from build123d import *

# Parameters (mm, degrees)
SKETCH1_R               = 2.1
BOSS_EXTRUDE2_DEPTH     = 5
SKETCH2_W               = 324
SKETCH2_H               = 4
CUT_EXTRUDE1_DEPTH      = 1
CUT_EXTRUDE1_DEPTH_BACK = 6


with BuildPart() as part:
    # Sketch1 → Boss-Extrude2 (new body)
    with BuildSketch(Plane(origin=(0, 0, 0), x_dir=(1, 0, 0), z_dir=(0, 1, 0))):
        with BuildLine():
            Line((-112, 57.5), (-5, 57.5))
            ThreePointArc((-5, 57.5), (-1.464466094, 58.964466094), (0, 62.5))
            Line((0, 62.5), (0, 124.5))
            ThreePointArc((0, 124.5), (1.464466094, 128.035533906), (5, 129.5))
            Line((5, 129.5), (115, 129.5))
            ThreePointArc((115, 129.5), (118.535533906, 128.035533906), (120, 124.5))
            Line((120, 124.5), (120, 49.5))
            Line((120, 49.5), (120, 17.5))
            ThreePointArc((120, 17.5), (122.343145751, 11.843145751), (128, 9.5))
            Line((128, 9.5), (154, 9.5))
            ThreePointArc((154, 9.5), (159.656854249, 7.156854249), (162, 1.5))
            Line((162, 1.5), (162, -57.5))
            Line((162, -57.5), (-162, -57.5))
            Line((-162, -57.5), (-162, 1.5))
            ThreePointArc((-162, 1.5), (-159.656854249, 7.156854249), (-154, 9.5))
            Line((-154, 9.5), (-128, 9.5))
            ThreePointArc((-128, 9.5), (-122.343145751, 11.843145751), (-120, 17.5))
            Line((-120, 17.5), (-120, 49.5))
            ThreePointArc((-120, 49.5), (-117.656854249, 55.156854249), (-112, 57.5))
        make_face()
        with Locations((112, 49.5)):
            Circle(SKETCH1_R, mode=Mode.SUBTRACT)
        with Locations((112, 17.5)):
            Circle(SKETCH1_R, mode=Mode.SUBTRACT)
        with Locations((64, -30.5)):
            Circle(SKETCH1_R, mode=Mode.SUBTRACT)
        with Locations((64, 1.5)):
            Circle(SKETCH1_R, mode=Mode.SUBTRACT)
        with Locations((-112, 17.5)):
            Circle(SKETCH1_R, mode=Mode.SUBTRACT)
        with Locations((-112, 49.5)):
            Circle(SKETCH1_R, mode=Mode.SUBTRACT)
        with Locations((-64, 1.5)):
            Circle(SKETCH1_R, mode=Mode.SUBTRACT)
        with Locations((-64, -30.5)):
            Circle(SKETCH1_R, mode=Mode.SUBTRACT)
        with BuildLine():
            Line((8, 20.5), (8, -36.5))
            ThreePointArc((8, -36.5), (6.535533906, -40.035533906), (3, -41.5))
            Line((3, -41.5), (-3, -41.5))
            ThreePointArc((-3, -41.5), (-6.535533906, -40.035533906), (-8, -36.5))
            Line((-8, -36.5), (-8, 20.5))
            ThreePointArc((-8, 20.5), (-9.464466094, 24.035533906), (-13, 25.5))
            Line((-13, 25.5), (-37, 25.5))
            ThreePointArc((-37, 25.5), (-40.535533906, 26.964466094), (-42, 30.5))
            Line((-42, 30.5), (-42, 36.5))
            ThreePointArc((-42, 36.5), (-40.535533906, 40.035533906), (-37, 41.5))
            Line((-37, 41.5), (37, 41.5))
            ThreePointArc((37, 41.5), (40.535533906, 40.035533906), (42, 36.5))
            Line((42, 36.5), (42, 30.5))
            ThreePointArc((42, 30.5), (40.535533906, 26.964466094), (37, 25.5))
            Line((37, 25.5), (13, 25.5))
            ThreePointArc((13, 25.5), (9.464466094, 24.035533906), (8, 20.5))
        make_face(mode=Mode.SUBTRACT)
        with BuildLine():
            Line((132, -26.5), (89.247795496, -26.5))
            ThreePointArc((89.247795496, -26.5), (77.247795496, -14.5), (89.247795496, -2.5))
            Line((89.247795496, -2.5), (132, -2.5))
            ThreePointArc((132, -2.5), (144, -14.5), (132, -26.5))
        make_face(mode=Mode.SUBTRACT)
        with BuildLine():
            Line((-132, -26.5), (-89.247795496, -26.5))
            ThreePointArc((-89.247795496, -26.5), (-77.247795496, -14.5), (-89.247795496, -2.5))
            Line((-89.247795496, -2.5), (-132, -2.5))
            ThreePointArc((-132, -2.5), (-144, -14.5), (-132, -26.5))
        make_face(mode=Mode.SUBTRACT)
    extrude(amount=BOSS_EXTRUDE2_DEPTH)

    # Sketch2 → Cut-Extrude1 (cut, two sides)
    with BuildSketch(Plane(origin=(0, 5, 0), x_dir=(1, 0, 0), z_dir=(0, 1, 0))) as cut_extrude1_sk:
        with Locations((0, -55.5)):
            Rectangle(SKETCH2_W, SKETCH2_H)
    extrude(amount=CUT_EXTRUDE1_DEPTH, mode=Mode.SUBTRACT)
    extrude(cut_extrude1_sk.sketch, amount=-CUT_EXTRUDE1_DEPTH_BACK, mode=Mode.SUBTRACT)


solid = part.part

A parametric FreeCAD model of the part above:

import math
import FreeCAD as App
import Part
import Sketcher
from FreeCAD import Vector


def add_polygon(sketch, points):
    """Adds a closed chain of lines whose ends are joined by coincident constraints."""
    first, n = sketch.GeometryCount, len(points)
    for a, b in zip(points, points[1:] + points[:1]):
        sketch.addGeometry(Part.LineSegment(App.Vector(*a, 0), App.Vector(*b, 0)), False)
    for i in range(n):
        sketch.addConstraint(Sketcher.Constraint("Coincident", first + i, 2, first + (i + 1) % n, 1))

doc = App.newDocument("Part")
body = doc.addObject("PartDesign::Body", "Body")

sketch1 = body.newObject("Sketcher::SketchObject", "Sketch")
sketch1.AttachmentSupport = (doc.getObject("XZ_Plane"), [""])
sketch1.MapMode = "FlatFace"
sketch1.addGeometry([
    Part.LineSegment(Vector(-5, -57.5, 0), Vector(-112, -57.5, 0)),
    Part.ArcOfCircle(Part.Circle(Vector(-112, -49.5, 0), Vector(0, 0, 1), 8), math.radians(-180), math.radians(-90)),
    Part.LineSegment(Vector(-120, -49.5, 0), Vector(-120, -17.5, 0)),
    Part.ArcOfCircle(Part.Circle(Vector(-128, -17.5, 0), Vector(0, 0, 1), 8), math.radians(0), math.radians(90)),
    Part.LineSegment(Vector(-128, -9.5, 0), Vector(-154, -9.5, 0)),
    Part.ArcOfCircle(Part.Circle(Vector(-154, -1.5, 0), Vector(0, 0, 1), 8), math.radians(-180), math.radians(-90)),
    Part.LineSegment(Vector(-162, -1.5, 0), Vector(-162, 57.5, 0)),
    Part.LineSegment(Vector(-162, 57.5, 0), Vector(162, 57.5, 0)),
    Part.LineSegment(Vector(162, 57.5, 0), Vector(162, -1.5, 0)),
    Part.ArcOfCircle(Part.Circle(Vector(154, -1.5, 0), Vector(0, 0, 1), 8), math.radians(-90), math.radians(0)),
    Part.LineSegment(Vector(154, -9.5, 0), Vector(128, -9.5, 0)),
    Part.ArcOfCircle(Part.Circle(Vector(128, -17.5, 0), Vector(0, 0, 1), 8), math.radians(90), math.radians(180)),
    Part.LineSegment(Vector(120, -17.5, 0), Vector(120, -124.5, 0)),
    Part.ArcOfCircle(Part.Circle(Vector(115, -124.5, 0), Vector(0, 0, 1), 5), math.radians(-90), math.radians(0)),
    Part.LineSegment(Vector(115, -129.5, 0), Vector(5, -129.5, 0)),
    Part.ArcOfCircle(Part.Circle(Vector(5, -124.5, 0), Vector(0, 0, 1), 5), math.radians(180), math.radians(270)),
    Part.LineSegment(Vector(0, -124.5, 0), Vector(0, -62.5, 0)),
    Part.ArcOfCircle(Part.Circle(Vector(-5, -62.5, 0), Vector(0, 0, 1), 5), math.radians(0), math.radians(90)),
    Part.Circle(Vector(64, 30.5, 0), Vector(0, 0, 1), 2.1),
    Part.LineSegment(Vector(132, 26.5, 0), Vector(89.247795, 26.5, 0)),
    Part.ArcOfCircle(Part.Circle(Vector(89.247795, 14.5, 0), Vector(0, 0, 1), 12), math.radians(90), math.radians(270)),
    Part.LineSegment(Vector(89.247795, 2.5, 0), Vector(132, 2.5, 0)),
    Part.ArcOfCircle(Part.Circle(Vector(132, 14.5, 0), Vector(0, 0, 1), 12), math.radians(-90), math.radians(90)),
    Part.Circle(Vector(64, -1.5, 0), Vector(0, 0, 1), 2.1),
    Part.Circle(Vector(-64, 30.5, 0), Vector(0, 0, 1), 2.1),
    Part.LineSegment(Vector(8, -20.5, 0), Vector(8, 36.5, 0)),
    Part.ArcOfCircle(Part.Circle(Vector(3, 36.5, 0), Vector(0, 0, 1), 5), math.radians(0), math.radians(90)),
    Part.LineSegment(Vector(3, 41.5, 0), Vector(-3, 41.5, 0)),
    Part.ArcOfCircle(Part.Circle(Vector(-3, 36.5, 0), Vector(0, 0, 1), 5), math.radians(90), math.radians(180)),
    Part.LineSegment(Vector(-8, 36.5, 0), Vector(-8, -20.5, 0)),
    Part.ArcOfCircle(Part.Circle(Vector(-13, -20.5, 0), Vector(0, 0, 1), 5), math.radians(-90), math.radians(0)),
    Part.LineSegment(Vector(-13, -25.5, 0), Vector(-37, -25.5, 0)),
    Part.ArcOfCircle(Part.Circle(Vector(-37, -30.5, 0), Vector(0, 0, 1), 5), math.radians(90), math.radians(180)),
    Part.LineSegment(Vector(-42, -30.5, 0), Vector(-42, -36.5, 0)),
    Part.ArcOfCircle(Part.Circle(Vector(-37, -36.5, 0), Vector(0, 0, 1), 5), math.radians(180), math.radians(270)),
    Part.LineSegment(Vector(-37, -41.5, 0), Vector(37, -41.5, 0)),
    Part.ArcOfCircle(Part.Circle(Vector(37, -36.5, 0), Vector(0, 0, 1), 5), math.radians(-90), math.radians(0)),
    Part.LineSegment(Vector(42, -36.5, 0), Vector(42, -30.5, 0)),
    Part.ArcOfCircle(Part.Circle(Vector(37, -30.5, 0), Vector(0, 0, 1), 5), math.radians(0), math.radians(90)),
    Part.LineSegment(Vector(37, -25.5, 0), Vector(13, -25.5, 0)),
    Part.ArcOfCircle(Part.Circle(Vector(13, -20.5, 0), Vector(0, 0, 1), 5), math.radians(180), math.radians(270)),
    Part.Circle(Vector(-64, -1.5, 0), Vector(0, 0, 1), 2.1),
    Part.ArcOfCircle(Part.Circle(Vector(-132, 14.5, 0), Vector(0, 0, 1), 12), math.radians(90), math.radians(270)),
    Part.LineSegment(Vector(-132, 2.5, 0), Vector(-89.247795, 2.5, 0)),
    Part.ArcOfCircle(Part.Circle(Vector(-89.247795, 14.5, 0), Vector(0, 0, 1), 12), math.radians(-90), math.radians(90)),
    Part.LineSegment(Vector(-89.247795, 26.5, 0), Vector(-132, 26.5, 0)),
    Part.Circle(Vector(112, -17.5, 0), Vector(0, 0, 1), 2.1),
    Part.Circle(Vector(112, -49.5, 0), Vector(0, 0, 1), 2.1),
    Part.Circle(Vector(-112, -17.5, 0), Vector(0, 0, 1), 2.1),
    Part.Circle(Vector(-112, -49.5, 0), Vector(0, 0, 1), 2.1),
], False)
sketch1.addConstraint([
    Sketcher.Constraint("Tangent", 0, 2, 1, 2),
    Sketcher.Constraint("Tangent", 1, 1, 2, 1),
    Sketcher.Constraint("Tangent", 2, 2, 3, 1),
    Sketcher.Constraint("Tangent", 3, 2, 4, 1),
    Sketcher.Constraint("Tangent", 4, 2, 5, 2),
    Sketcher.Constraint("Tangent", 5, 1, 6, 1),
    Sketcher.Constraint("Coincident", 6, 2, 7, 1),
    Sketcher.Constraint("Coincident", 7, 2, 8, 1),
    Sketcher.Constraint("Tangent", 8, 2, 9, 2),
    Sketcher.Constraint("Tangent", 9, 1, 10, 1),
    Sketcher.Constraint("Tangent", 10, 2, 11, 1),
    Sketcher.Constraint("Tangent", 11, 2, 12, 1),
    Sketcher.Constraint("Tangent", 12, 2, 13, 2),
    Sketcher.Constraint("Tangent", 13, 1, 14, 1),
    Sketcher.Constraint("Tangent", 14, 2, 15, 2),
    Sketcher.Constraint("Tangent", 15, 1, 16, 1),
    Sketcher.Constraint("Tangent", 16, 2, 17, 1),
    Sketcher.Constraint("Tangent", 17, 2, 0, 1),
    Sketcher.Constraint("Tangent", 19, 2, 20, 1),
    Sketcher.Constraint("Tangent", 20, 2, 21, 1),
    Sketcher.Constraint("Tangent", 21, 2, 22, 1),
    Sketcher.Constraint("Tangent", 22, 2, 19, 1),
    Sketcher.Constraint("Tangent", 25, 2, 26, 1),
    Sketcher.Constraint("Tangent", 26, 2, 27, 1),
    Sketcher.Constraint("Tangent", 27, 2, 28, 1),
    Sketcher.Constraint("Tangent", 28, 2, 29, 1),
    Sketcher.Constraint("Tangent", 29, 2, 30, 2),
    Sketcher.Constraint("Tangent", 30, 1, 31, 1),
    Sketcher.Constraint("Tangent", 31, 2, 32, 1),
    Sketcher.Constraint("Tangent", 32, 2, 33, 1),
    Sketcher.Constraint("Tangent", 33, 2, 34, 1),
    Sketcher.Constraint("Tangent", 34, 2, 35, 1),
    Sketcher.Constraint("Tangent", 35, 2, 36, 1),
    Sketcher.Constraint("Tangent", 36, 2, 37, 1),
    Sketcher.Constraint("Tangent", 37, 2, 38, 1),
    Sketcher.Constraint("Tangent", 38, 2, 39, 1),
    Sketcher.Constraint("Tangent", 39, 2, 40, 2),
    Sketcher.Constraint("Tangent", 40, 1, 25, 1),
    Sketcher.Constraint("Tangent", 42, 2, 43, 1),
    Sketcher.Constraint("Tangent", 43, 2, 44, 1),
    Sketcher.Constraint("Tangent", 44, 2, 45, 1),
    Sketcher.Constraint("Tangent", 45, 2, 42, 1),
    Sketcher.Constraint("Horizontal", 0),
    Sketcher.Constraint("Vertical", 2),
    Sketcher.Constraint("Horizontal", 4),
    Sketcher.Constraint("Vertical", 6),
    Sketcher.Constraint("Horizontal", 7),
    Sketcher.Constraint("Vertical", 8),
    Sketcher.Constraint("Horizontal", 10),
    Sketcher.Constraint("Vertical", 12),
    Sketcher.Constraint("Horizontal", 14),
    Sketcher.Constraint("Vertical", 16),
    Sketcher.Constraint("Horizontal", 19),
    Sketcher.Constraint("Horizontal", 21),
    Sketcher.Constraint("Vertical", 25),
    Sketcher.Constraint("Horizontal", 27),
    Sketcher.Constraint("Vertical", 29),
    Sketcher.Constraint("Horizontal", 31),
    Sketcher.Constraint("Vertical", 33),
    Sketcher.Constraint("Horizontal", 35),
    Sketcher.Constraint("Vertical", 37),
    Sketcher.Constraint("Horizontal", 39),
    Sketcher.Constraint("Horizontal", 43),
    Sketcher.Constraint("Horizontal", 45),
    Sketcher.Constraint("Coincident", 49, 3, 1, 3),
    Sketcher.Constraint("Equal", 1, 3),
    Sketcher.Constraint("Equal", 3, 5),
    Sketcher.Constraint("Equal", 5, 9),
    Sketcher.Constraint("Equal", 9, 11),
    Sketcher.Constraint("Equal", 13, 15),
    Sketcher.Constraint("Equal", 15, 17),
    Sketcher.Constraint("Equal", 18, 23),
    Sketcher.Constraint("Equal", 23, 24),
    Sketcher.Constraint("Equal", 17, 26),
    Sketcher.Constraint("Equal", 26, 28),
    Sketcher.Constraint("Equal", 28, 30),
    Sketcher.Constraint("Equal", 30, 32),
    Sketcher.Constraint("Equal", 32, 34),
    Sketcher.Constraint("Equal", 34, 36),
    Sketcher.Constraint("Equal", 36, 38),
    Sketcher.Constraint("Equal", 38, 40),
    Sketcher.Constraint("Equal", 24, 41),
    Sketcher.Constraint("Equal", 22, 42),
    Sketcher.Constraint("Equal", 41, 46),
    Sketcher.Constraint("Equal", 46, 47),
    Sketcher.Constraint("Equal", 47, 48),
    Sketcher.Constraint("Equal", 48, 49),
    Sketcher.Constraint("Symmetric", 5, 3, 9, 3, -2),
    Sketcher.Constraint("Symmetric", 18, 3, 24, 3, -2),
    Sketcher.Constraint("Symmetric", 32, 3, 38, 3, -2),
    Sketcher.Constraint("Symmetric", 23, 3, 41, 3, -2),
    Sketcher.Constraint("Symmetric", 22, 3, 42, 3, -2),
    Sketcher.Constraint("Symmetric", 1, 3, 47, 3, -2),
    Sketcher.Constraint("Symmetric", 46, 3, 48, 3, -2),
    Sketcher.Constraint("PointOnObject", 15, 1, -2),
    Sketcher.Constraint("Horizontal", 9, 3, 23, 3),
    Sketcher.Constraint("Horizontal", 11, 3, 46, 3),
    Sketcher.Constraint("Vertical", 18, 3, 23, 3),
    Sketcher.Constraint("Vertical", 46, 3, 47, 3),
    Sketcher.Constraint("Equal", 4, 10),
    Sketcher.Constraint("Equal", 31, 39),
    Sketcher.Constraint("Equal", 21, 43),
    Sketcher.Constraint("Equal", 0, 12),
    Sketcher.Constraint("Equal", 27, 33),
    Sketcher.Constraint("Radius", 1, 8.0),
    Sketcher.Constraint("Radius", 13, 5.0),
    Sketcher.Constraint("Radius", 20, 12.0),
    Sketcher.Constraint("Diameter", 18, 4.2),
    Sketcher.Constraint("DistanceX", 0, 2, 0, 1, 107.0),
    Sketcher.Constraint("DistanceX", 4, 2, 4, 1, 26.0),
    Sketcher.Constraint("DistanceX", 27, 2, 27, 1, 6.0),
    Sketcher.Constraint("DistanceX", 31, 2, 31, 1, 24.0),
    Sketcher.Constraint("DistanceY", 2, 1, 2, 2, 32.0),
    Sketcher.Constraint("DistanceY", 6, 1, 6, 2, 59.0),
    Sketcher.Constraint("DistanceY", 25, 1, 25, 2, 57.0),
    Sketcher.Constraint("DistanceX", -1, 1, 18, 3, 64.0),
    Sketcher.Constraint("DistanceX", -1, 1, 22, 3, 132.0),
    Sketcher.Constraint("DistanceY", 1, 3, -1, 1, 49.5),
    Sketcher.Constraint("DistanceY", -1, 1, 18, 3, 30.5),
    Sketcher.Constraint("DistanceY", -1, 1, 20, 3, 14.5),
    Sketcher.Constraint("DistanceY", -1, 1, 26, 3, 36.5),
    Sketcher.Constraint("DistanceX", 19, 2, 19, 1, 42.752205),
])
pad1 = body.newObject("PartDesign::Pad", "Pad")
pad1.Profile = sketch1
pad1.Length = 5
pad1.Reversed = True

sketch2 = body.newObject("Sketcher::SketchObject", "Sketch001")
sketch2.AttachmentSupport = (doc.getObject("XZ_Plane"), [""])
sketch2.MapMode = "FlatFace"
sketch2.AttachmentOffset = App.Placement(Vector(0, 0, -5), App.Rotation())
add_polygon(sketch2, [(-162, 53.5), (-162, 57.5), (162, 57.5), (162, 53.5)])
sketch2.addConstraint([
    Sketcher.Constraint("Vertical", 0),
    Sketcher.Constraint("Horizontal", 1),
    Sketcher.Constraint("Vertical", 2),
    Sketcher.Constraint("Horizontal", 3),
    Sketcher.Constraint("DistanceX", 1, 1, 1, 2, 324.0),
    Sketcher.Constraint("DistanceY", 0, 1, 0, 2, 4.0),
    Sketcher.Constraint("DistanceX", 0, 2, -1, 1, 162.0),
    Sketcher.Constraint("DistanceY", -1, 1, 0, 2, 57.5),
])
pocket1 = body.newObject("PartDesign::Pocket", "Pocket")
pocket1.Profile = sketch2
pocket1.Type = "ThroughAll"
pocket1.Midplane = True

doc.recompute()
